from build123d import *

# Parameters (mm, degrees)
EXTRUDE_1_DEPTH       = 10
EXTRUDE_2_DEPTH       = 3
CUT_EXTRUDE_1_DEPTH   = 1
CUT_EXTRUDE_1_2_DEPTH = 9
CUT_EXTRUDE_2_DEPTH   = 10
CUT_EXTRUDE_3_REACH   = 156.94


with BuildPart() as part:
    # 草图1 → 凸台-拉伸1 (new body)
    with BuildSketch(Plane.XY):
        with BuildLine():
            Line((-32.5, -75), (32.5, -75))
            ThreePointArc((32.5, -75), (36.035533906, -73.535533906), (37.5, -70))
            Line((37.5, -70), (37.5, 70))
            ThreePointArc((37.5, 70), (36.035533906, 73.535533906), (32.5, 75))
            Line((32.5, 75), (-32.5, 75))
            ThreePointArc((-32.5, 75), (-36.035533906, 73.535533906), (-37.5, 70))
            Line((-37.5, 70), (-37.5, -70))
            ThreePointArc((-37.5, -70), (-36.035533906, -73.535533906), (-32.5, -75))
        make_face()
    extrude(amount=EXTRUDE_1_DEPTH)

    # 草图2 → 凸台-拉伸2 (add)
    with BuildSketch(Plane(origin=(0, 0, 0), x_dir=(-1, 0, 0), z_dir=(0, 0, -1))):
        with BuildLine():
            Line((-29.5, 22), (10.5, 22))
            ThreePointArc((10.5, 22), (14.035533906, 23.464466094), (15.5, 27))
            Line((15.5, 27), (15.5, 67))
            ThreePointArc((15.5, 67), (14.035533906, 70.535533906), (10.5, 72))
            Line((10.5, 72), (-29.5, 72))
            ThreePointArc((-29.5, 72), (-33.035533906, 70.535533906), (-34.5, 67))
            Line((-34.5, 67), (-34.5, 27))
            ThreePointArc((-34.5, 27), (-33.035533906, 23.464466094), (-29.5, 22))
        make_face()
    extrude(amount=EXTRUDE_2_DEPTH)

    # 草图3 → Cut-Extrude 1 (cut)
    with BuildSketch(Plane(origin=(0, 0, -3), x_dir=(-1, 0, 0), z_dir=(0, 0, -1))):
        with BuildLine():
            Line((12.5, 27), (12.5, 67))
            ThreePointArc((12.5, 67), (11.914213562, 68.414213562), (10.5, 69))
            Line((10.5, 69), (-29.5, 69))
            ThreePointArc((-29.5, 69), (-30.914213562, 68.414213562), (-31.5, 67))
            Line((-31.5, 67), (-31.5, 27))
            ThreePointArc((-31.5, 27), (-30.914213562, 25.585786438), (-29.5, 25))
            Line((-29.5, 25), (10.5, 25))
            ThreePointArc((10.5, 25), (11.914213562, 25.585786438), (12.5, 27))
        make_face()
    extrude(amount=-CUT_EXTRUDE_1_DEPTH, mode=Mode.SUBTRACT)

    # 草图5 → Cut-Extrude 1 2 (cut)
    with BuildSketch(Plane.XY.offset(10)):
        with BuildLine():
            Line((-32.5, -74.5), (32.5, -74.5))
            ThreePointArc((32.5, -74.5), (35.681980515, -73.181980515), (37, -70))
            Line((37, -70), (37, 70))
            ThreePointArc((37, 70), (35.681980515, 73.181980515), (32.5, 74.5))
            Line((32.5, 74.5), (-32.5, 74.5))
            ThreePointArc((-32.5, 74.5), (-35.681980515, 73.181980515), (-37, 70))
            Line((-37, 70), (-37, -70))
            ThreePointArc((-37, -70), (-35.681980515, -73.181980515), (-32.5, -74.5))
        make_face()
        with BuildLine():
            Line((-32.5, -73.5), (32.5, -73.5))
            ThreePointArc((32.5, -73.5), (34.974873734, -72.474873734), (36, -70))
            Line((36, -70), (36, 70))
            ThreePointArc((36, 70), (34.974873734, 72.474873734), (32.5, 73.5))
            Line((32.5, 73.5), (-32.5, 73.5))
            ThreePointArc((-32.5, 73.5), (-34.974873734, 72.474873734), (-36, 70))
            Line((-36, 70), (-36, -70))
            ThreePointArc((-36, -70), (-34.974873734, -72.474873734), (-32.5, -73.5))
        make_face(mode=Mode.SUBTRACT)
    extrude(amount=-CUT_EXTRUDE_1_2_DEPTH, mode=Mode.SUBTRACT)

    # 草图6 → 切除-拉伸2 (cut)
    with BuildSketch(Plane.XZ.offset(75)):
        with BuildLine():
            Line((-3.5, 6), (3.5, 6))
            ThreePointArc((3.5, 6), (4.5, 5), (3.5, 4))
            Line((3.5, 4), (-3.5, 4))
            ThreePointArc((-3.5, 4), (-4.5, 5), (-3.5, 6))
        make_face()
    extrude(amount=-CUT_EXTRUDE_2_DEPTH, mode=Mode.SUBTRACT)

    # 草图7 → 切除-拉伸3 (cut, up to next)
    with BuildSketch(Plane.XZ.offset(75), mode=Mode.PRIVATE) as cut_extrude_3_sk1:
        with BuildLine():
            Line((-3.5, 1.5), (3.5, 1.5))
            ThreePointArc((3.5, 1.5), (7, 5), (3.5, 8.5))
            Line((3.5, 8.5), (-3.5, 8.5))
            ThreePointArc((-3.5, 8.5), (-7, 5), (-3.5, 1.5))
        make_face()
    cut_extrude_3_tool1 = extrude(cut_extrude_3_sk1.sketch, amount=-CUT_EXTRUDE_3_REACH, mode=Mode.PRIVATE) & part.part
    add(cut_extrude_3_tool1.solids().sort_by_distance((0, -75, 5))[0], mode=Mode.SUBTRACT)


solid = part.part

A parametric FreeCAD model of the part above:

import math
import FreeCAD as App
import Part
import Sketcher
Q = App.Units.Quantity

doc = App.newDocument("Part")
body = doc.addObject("PartDesign::Body", "Body")

# Sketch on XY plane
sketch1 = doc.addObject("Sketcher::SketchObject", "Sketch")
body.addObject(sketch1)
sketch1.AttachmentSupport = (doc.XY_Plane, [""])
sketch1.MapMode = "FlatFace"
sketch1.addGeometry(Part.LineSegment(App.Vector(-32.5, -75, 0), App.Vector(32.5, -75, 0)), False)
sketch1.addGeometry(Part.ArcOfCircle(Part.Circle(App.Vector(32.5, -70, 0), App.Vector(0, 0, 1), 5), math.radians(-90), math.radians(0)), False)
sketch1.addGeometry(Part.LineSegment(App.Vector(37.5, -70, 0), App.Vector(37.5, 70, 0)), False)
sketch1.addGeometry(Part.ArcOfCircle(Part.Circle(App.Vector(32.5, 70, 0), App.Vector(0, 0, 1), 5), math.radians(0), math.radians(90)), False)
sketch1.addGeometry(Part.LineSegment(App.Vector(32.5, 75, 0), App.Vector(-32.5, 75, 0)), False)
sketch1.addGeometry(Part.ArcOfCircle(Part.Circle(App.Vector(-32.5, 70, 0), App.Vector(0, 0, 1), 5), math.radians(90), math.radians(180)), False)
sketch1.addGeometry(Part.LineSegment(App.Vector(-37.5, 70, 0), App.Vector(-37.5, -70, 0)), False)
sketch1.addGeometry(Part.ArcOfCircle(Part.Circle(App.Vector(-32.5, -70, 0), App.Vector(0, 0, 1), 5), math.radians(180), math.radians(270)), False)
sketch1.addConstraint(Sketcher.Constraint("Tangent", 0, 2, 1, 1))
sketch1.addConstraint(Sketcher.Constraint("Tangent", 1, 2, 2, 1))
sketch1.addConstraint(Sketcher.Constraint("Tangent", 2, 2, 3, 1))
sketch1.addConstraint(Sketcher.Constraint("Tangent", 3, 2, 4, 1))
sketch1.addConstraint(Sketcher.Constraint("Tangent", 4, 2, 5, 1))
sketch1.addConstraint(Sketcher.Constraint("Tangent", 5, 2, 6, 1))
sketch1.addConstraint(Sketcher.Constraint("Tangent", 6, 2, 7, 1))
sketch1.addConstraint(Sketcher.Constraint("Tangent", 7, 2, 0, 1))
sketch1.addConstraint(Sketcher.Constraint("Horizontal", 0))
sketch1.addConstraint(Sketcher.Constraint("Vertical", 2))
sketch1.addConstraint(Sketcher.Constraint("Horizontal", 4))
sketch1.addConstraint(Sketcher.Constraint("Vertical", 6))
sketch1.addConstraint(Sketcher.Constraint("Equal", 1, 3))
sketch1.addConstraint(Sketcher.Constraint("Equal", 3, 5))
sketch1.addConstraint(Sketcher.Constraint("Equal", 5, 7))
sketch1.addConstraint(Sketcher.Constraint("Symmetric", 1, 3, 5, 3, -1, 1))
sketch1.addConstraint(Sketcher.Constraint("Radius", 1, Q("5 mm")))
sketch1.addConstraint(Sketcher.Constraint("DistanceX", 0, 1, 0, 2, Q("65 mm")))
sketch1.addConstraint(Sketcher.Constraint("DistanceY", 2, 1, 2, 2, Q("140 mm")))
pad1 = doc.addObject("PartDesign::Pad", "Pad")
body.addObject(pad1)
pad1.Profile = sketch1
pad1.Length = 10

# Sketch on XY plane
sketch2 = doc.addObject("Sketcher::SketchObject", "Sketch001")
body.addObject(sketch2)
sketch2.AttachmentSupport = (doc.XY_Plane, [""])
sketch2.MapMode = "FlatFace"
sketch2.addGeometry(Part.LineSegment(App.Vector(29.5, 22, 0), App.Vector(-10.5, 22, 0)), False)
sketch2.addGeometry(Part.ArcOfCircle(Part.Circle(App.Vector(-10.5, 27, 0), App.Vector(0, 0, 1), 5), math.radians(180), math.radians(270)), False)
sketch2.addGeometry(Part.LineSegment(App.Vector(-15.5, 27, 0), App.Vector(-15.5, 67, 0)), False)
sketch2.addGeometry(Part.ArcOfCircle(Part.Circle(App.Vector(-10.5, 67, 0), App.Vector(0, 0, 1), 5), math.radians(90), math.radians(180)), False)
sketch2.addGeometry(Part.LineSegment(App.Vector(-10.5, 72, 0), App.Vector(29.5, 72, 0)), False)
sketch2.addGeometry(Part.ArcOfCircle(Part.Circle(App.Vector(29.5, 67, 0), App.Vector(0, 0, 1), 5), math.radians(0), math.radians(90)), False)
sketch2.addGeometry(Part.LineSegment(App.Vector(34.5, 67, 0), App.Vector(34.5, 27, 0)), False)
sketch2.addGeometry(Part.ArcOfCircle(Part.Circle(App.Vector(29.5, 27, 0), App.Vector(0, 0, 1), 5), math.radians(-90), math.radians(0)), False)
sketch2.addConstraint(Sketcher.Constraint("Tangent", 0, 2, 1, 2))
sketch2.addConstraint(Sketcher.Constraint("Tangent", 1, 1, 2, 1))
sketch2.addConstraint(Sketcher.Constraint("Tangent", 2, 2, 3, 2))
sketch2.addConstraint(Sketcher.Constraint("Tangent", 3, 1, 4, 1))
sketch2.addConstraint(Sketcher.Constraint("Tangent", 4, 2, 5, 2))
sketch2.addConstraint(Sketcher.Constraint("Tangent", 5, 1, 6, 1))
sketch2.addConstraint(Sketcher.Constraint("Tangent", 6, 2, 7, 2))
sketch2.addConstraint(Sketcher.Constraint("Tangent", 7, 1, 0, 1))
sketch2.addConstraint(Sketcher.Constraint("Horizontal", 0))
sketch2.addConstraint(Sketcher.Constraint("Vertical", 2))
sketch2.addConstraint(Sketcher.Constraint("Horizontal", 4))
sketch2.addConstraint(Sketcher.Constraint("Vertical", 6))
sketch2.addConstraint(Sketcher.Constraint("Equal", 1, 3))
sketch2.addConstraint(Sketcher.Constraint("Equal", 3, 5))
sketch2.addConstraint(Sketcher.Constraint("Equal", 5, 7))
sketch2.addConstraint(Sketcher.Constraint("Equal", 4, 2))
sketch2.addConstraint(Sketcher.Constraint("Radius", 1, Q("5 mm")))
sketch2.addConstraint(Sketcher.Constraint("DistanceX", 0, 2, 0, 1, Q("40 mm")))
sketch2.addConstraint(Sketcher.Constraint("DistanceY", -1, 1, 1, 3, Q("27 mm")))
sketch2.addConstraint(Sketcher.Constraint("DistanceX", 1, 3, -1, 1, Q("10.5 mm")))
pad2 = doc.addObject("PartDesign::Pad", "Pad001")
body.addObject(pad2)
pad2.Profile = sketch2
pad2.Length = 3
pad2.Reversed = True

# Sketch on XY plane
sketch3 = doc.addObject("Sketcher::SketchObject", "Sketch002")
body.addObject(sketch3)
sketch3.AttachmentSupport = (doc.XY_Plane, [""])
sketch3.MapMode = "FlatFace"
sketch3.AttachmentOffset = App.Placement(App.Vector(0, 0, -3), App.Rotation())
sketch3.addGeometry(Part.LineSegment(App.Vector(-12.5, 27, 0), App.Vector(-12.5, 67, 0)), False)
sketch3.addGeometry(Part.ArcOfCircle(Part.Circle(App.Vector(-10.5, 67, 0), App.Vector(0, 0, 1), 2), math.radians(90), math.radians(180)), False)
sketch3.addGeometry(Part.LineSegment(App.Vector(-10.5, 69, 0), App.Vector(29.5, 69, 0)), False)
sketch3.addGeometry(Part.ArcOfCircle(Part.Circle(App.Vector(29.5, 67, 0), App.Vector(0, 0, 1), 2), math.radians(0), math.radians(90)), False)
sketch3.addGeometry(Part.LineSegment(App.Vector(31.5, 67, 0), App.Vector(31.5, 27, 0)), False)
sketch3.addGeometry(Part.ArcOfCircle(Part.Circle(App.Vector(29.5, 27, 0), App.Vector(0, 0, 1), 2), math.radians(-90), math.radians(0)), False)
sketch3.addGeometry(Part.LineSegment(App.Vector(29.5, 25, 0), App.Vector(-10.5, 25, 0)), False)
sketch3.addGeometry(Part.ArcOfCircle(Part.Circle(App.Vector(-10.5, 27, 0), App.Vector(0, 0, 1), 2), math.radians(-180), math.radians(-90)), False)
sketch3.addConstraint(Sketcher.Constraint("Tangent", 0, 2, 1, 2))
sketch3.addConstraint(Sketcher.Constraint("Tangent", 1, 1, 2, 1))
sketch3.addConstraint(Sketcher.Constraint("Tangent", 2, 2, 3, 2))
sketch3.addConstraint(Sketcher.Constraint("Tangent", 3, 1, 4, 1))
sketch3.addConstraint(Sketcher.Constraint("Tangent", 4, 2, 5, 2))
sketch3.addConstraint(Sketcher.Constraint("Tangent", 5, 1, 6, 1))
sketch3.addConstraint(Sketcher.Constraint("Tangent", 6, 2, 7, 2))
sketch3.addConstraint(Sketcher.Constraint("Tangent", 7, 1, 0, 1))
sketch3.addConstraint(Sketcher.Constraint("Vertical", 0))
sketch3.addConstraint(Sketcher.Constraint("Horizontal", 2))
sketch3.addConstraint(Sketcher.Constraint("Vertical", 4))
sketch3.addConstraint(Sketcher.Constraint("Horizontal", 6))
sketch3.addConstraint(Sketcher.Constraint("Equal", 1, 3))
sketch3.addConstraint(Sketcher.Constraint("Equal", 3, 5))
sketch3.addConstraint(Sketcher.Constraint("Equal", 5, 7))
sketch3.addConstraint(Sketcher.Constraint("Equal", 6, 0))
sketch3.addConstraint(Sketcher.Constraint("Radius", 1, Q("2 mm")))
sketch3.addConstraint(Sketcher.Constraint("DistanceX", 2, 1, 2, 2, Q("40 mm")))
sketch3.addConstraint(Sketcher.Constraint("DistanceY", -1, 1, 1, 3, Q("67 mm")))
sketch3.addConstraint(Sketcher.Constraint("DistanceX", 1, 3, -1, 1, Q("10.5 mm")))
pocket1 = doc.addObject("PartDesign::Pocket", "Pocket")
body.addObject(pocket1)
pocket1.Profile = sketch3
pocket1.Length = 1
pocket1.Reversed = True

# Sketch on XY plane
sketch4 = doc.addObject("Sketcher::SketchObject", "Sketch003")
body.addObject(sketch4)
sketch4.AttachmentSupport = (doc.XY_Plane, [""])
sketch4.MapMode = "FlatFace"
sketch4.AttachmentOffset = App.Placement(App.Vector(0, 0, 10), App.Rotation())
sketch4.addGeometry(Part.LineSegment(App.Vector(-32.5, -74.5, 0), App.Vector(32.5, -74.5, 0)), False)
sketch4.addGeometry(Part.ArcOfCircle(Part.Circle(App.Vector(32.5, -70, 0), App.Vector(0, 0, 1), 4.5), math.radians(-90), math.radians(0)), False)
sketch4.addGeometry(Part.LineSegment(App.Vector(37, -70, 0), App.Vector(37, 70, 0)), False)
sketch4.addGeometry(Part.ArcOfCircle(Part.Circle(App.Vector(32.5, 70, 0), App.Vector(0, 0, 1), 4.5), math.radians(0), math.radians(90)), False)
sketch4.addGeometry(Part.LineSegment(App.Vector(32.5, 74.5, 0), App.Vector(-32.5, 74.5, 0)), False)
sketch4.addGeometry(Part.ArcOfCircle(Part.Circle(App.Vector(-32.5, 70, 0), App.Vector(0, 0, 1), 4.5), math.radians(90), math.radians(180)), False)
sketch4.addGeometry(Part.LineSegment(App.Vector(-37, 70, 0), App.Vector(-37, -70, 0)), False)
sketch4.addGeometry(Part.ArcOfCircle(Part.Circle(App.Vector(-32.5, -70, 0), App.Vector(0, 0, 1), 4.5), math.radians(-180), math.radians(-90)), False)
sketch4.addGeometry(Part.LineSegment(App.Vector(32.5, -73.5, 0), App.Vector(-32.5, -73.5, 0)), False)
sketch4.addGeometry(Part.ArcOfCircle(Part.Circle(App.Vector(-32.5, -70, 0), App.Vector(0, 0, 1), 3.5), math.radians(-180), math.radians(-90)), False)
sketch4.addGeometry(Part.LineSegment(App.Vector(-36, -70, 0), App.Vector(-36, 70, 0)), False)
sketch4.addGeometry(Part.ArcOfCircle(Part.Circle(App.Vector(-32.5, 70, 0), App.Vector(0, 0, 1), 3.5), math.radians(90), math.radians(180)), False)
sketch4.addGeometry(Part.LineSegment(App.Vector(-32.5, 73.5, 0), App.Vector(32.5, 73.5, 0)), False)
sketch4.addGeometry(Part.ArcOfCircle(Part.Circle(App.Vector(32.5, 70, 0), App.Vector(0, 0, 1), 3.5), math.radians(0), math.radians(90)), False)
sketch4.addGeometry(Part.LineSegment(App.Vector(36, 70, 0), App.Vector(36, -70, 0)), False)
sketch4.addGeometry(Part.ArcOfCircle(Part.Circle(App.Vector(32.5, -70, 0), App.Vector(0, 0, 1), 3.5), math.radians(-90), math.radians(0)), False)
sketch4.addConstraint(Sketcher.Constraint("Tangent", 0, 2, 1, 1))
sketch4.addConstraint(Sketcher.Constraint("Tangent", 1, 2, 2, 1))
sketch4.addConstraint(Sketcher.Constraint("Tangent", 2, 2, 3, 1))
sketch4.addConstraint(Sketcher.Constraint("Tangent", 3, 2, 4, 1))
sketch4.addConstraint(Sketcher.Constraint("Tangent", 4, 2, 5, 1))
sketch4.addConstraint(Sketcher.Constraint("Tangent", 5, 2, 6, 1))
sketch4.addConstraint(Sketcher.Constraint("Tangent", 6, 2, 7, 1))
sketch4.addConstraint(Sketcher.Constraint("Tangent", 7, 2, 0, 1))
sketch4.addConstraint(Sketcher.Constraint("Tangent", 8, 2, 9, 2))
sketch4.addConstraint(Sketcher.Constraint("Tangent", 9, 1, 10, 1))
sketch4.addConstraint(Sketcher.Constraint("Tangent", 10, 2, 11, 2))
sketch4.addConstraint(Sketcher.Constraint("Tangent", 11, 1, 12, 1))
sketch4.addConstraint(Sketcher.Constraint("Tangent", 12, 2, 13, 2))
sketch4.addConstraint(Sketcher.Constraint("Tangent", 13, 1, 14, 1))
sketch4.addConstraint(Sketcher.Constraint("Tangent", 14, 2, 15, 2))
sketch4.addConstraint(Sketcher.Constraint("Tangent", 15, 1, 8, 1))
sketch4.addConstraint(Sketcher.Constraint("Horizontal", 0))
sketch4.addConstraint(Sketcher.Constraint("Vertical", 2))
sketch4.addConstraint(Sketcher.Constraint("Horizontal", 4))
sketch4.addConstraint(Sketcher.Constraint("Vertical", 6))
sketch4.addConstraint(Sketcher.Constraint("Horizontal", 8))
sketch4.addConstraint(Sketcher.Constraint("Vertical", 10))
sketch4.addConstraint(Sketcher.Constraint("Horizontal", 12))
sketch4.addConstraint(Sketcher.Constraint("Vertical", 14))
sketch4.addConstraint(Sketcher.Constraint("Coincident", 9, 3, 7, 3))
sketch4.addConstraint(Sketcher.Constraint("Coincident", 11, 3, 5, 3))
sketch4.addConstraint(Sketcher.Constraint("Coincident", 13, 3, 3, 3))
sketch4.addConstraint(Sketcher.Constraint("Equal", 1, 3))
sketch4.addConstraint(Sketcher.Constraint("Equal", 3, 5))
sketch4.addConstraint(Sketcher.Constraint("Equal", 5, 7))
sketch4.addConstraint(Sketcher.Constraint("Equal", 13, 15))
sketch4.addConstraint(Sketcher.Constraint("Symmetric", 1, 3, 5, 3, -1, 1))
sketch4.addConstraint(Sketcher.Constraint("Radius", 1, Q("4.5 mm")))
sketch4.addConstraint(Sketcher.Constraint("Radius", 9, Q("3.5 mm")))
sketch4.addConstraint(Sketcher.Constraint("DistanceX", 0, 1, 0, 2, Q("65 mm")))
sketch4.addConstraint(Sketcher.Constraint("DistanceY", 2, 1, 2, 2, Q("140 mm")))
pocket2 = doc.addObject("PartDesign::Pocket", "Pocket001")
body.addObject(pocket2)
pocket2.Profile = sketch4
pocket2.Length = 9

# Sketch on XZ plane
sketch5 = doc.addObject("Sketcher::SketchObject", "Sketch004")
body.addObject(sketch5)
sketch5.AttachmentSupport = (doc.XZ_Plane, [""])
sketch5.MapMode = "FlatFace"
sketch5.AttachmentOffset = App.Placement(App.Vector(0, 0, 75), App.Rotation())
sketch5.addGeometry(Part.LineSegment(App.Vector(3.5, 6, 0), App.Vector(-3.5, 6, 0)), False)
sketch5.addGeometry(Part.ArcOfCircle(Part.Circle(App.Vector(-3.5, 5, 0), App.Vector(0, 0, 1), 1), math.radians(90), math.radians(270)), False)
sketch5.addGeometry(Part.LineSegment(App.Vector(-3.5, 4, 0), App.Vector(3.5, 4, 0)), False)
sketch5.addGeometry(Part.ArcOfCircle(Part.Circle(App.Vector(3.5, 5, 0), App.Vector(0, 0, 1), 1), math.radians(-90), math.radians(90)), False)
sketch5.addConstraint(Sketcher.Constraint("Tangent", 0, 2, 1, 1))
sketch5.addConstraint(Sketcher.Constraint("Tangent", 1, 2, 2, 1))
sketch5.addConstraint(Sketcher.Constraint("Tangent", 2, 2, 3, 1))
sketch5.addConstraint(Sketcher.Constraint("Tangent", 3, 2, 0, 1))
sketch5.addConstraint(Sketcher.Constraint("Horizontal", 0))
sketch5.addConstraint(Sketcher.Constraint("Horizontal", 2))
sketch5.addConstraint(Sketcher.Constraint("Radius", 1, Q("1 mm")))
sketch5.addConstraint(Sketcher.Constraint("DistanceX", 0, 2, 0, 1, Q("7 mm")))
sketch5.addConstraint(Sketcher.Constraint("DistanceY", -1, 1, 1, 3, Q("5 mm")))
sketch5.addConstraint(Sketcher.Constraint("DistanceX", 1, 3, -1, 1, Q("3.5 mm")))
pocket3 = doc.addObject("PartDesign::Pocket", "Pocket002")
body.addObject(pocket3)
pocket3.Profile = sketch5
pocket3.Length = 10

# Sketch on XZ plane
sketch6 = doc.addObject("Sketcher::SketchObject", "Sketch005")
body.addObject(sketch6)
sketch6.AttachmentSupport = (doc.XZ_Plane, [""])
sketch6.MapMode = "FlatFace"
sketch6.AttachmentOffset = App.Placement(App.Vector(0, 0, 75), App.Rotation())
sketch6.addGeometry(Part.LineSegment(App.Vector(-3.5, 1.5, 0), App.Vector(3.5, 1.5, 0)), False)
sketch6.addGeometry(Part.ArcOfCircle(Part.Circle(App.Vector(3.5, 5, 0), App.Vector(0, 0, 1), 3.5), math.radians(-90), math.radians(90)), False)
sketch6.addGeometry(Part.LineSegment(App.Vector(3.5, 8.5, 0), App.Vector(-3.5, 8.5, 0)), False)
sketch6.addGeometry(Part.ArcOfCircle(Part.Circle(App.Vector(-3.5, 5, 0), App.Vector(0, 0, 1), 3.5), math.radians(90), math.radians(270)), False)
sketch6.addConstraint(Sketcher.Constraint("Tangent", 0, 2, 1, 1))
sketch6.addConstraint(Sketcher.Constraint("Tangent", 1, 2, 2, 1))
sketch6.addConstraint(Sketcher.Constraint("Tangent", 2, 2, 3, 1))
sketch6.addConstraint(Sketcher.Constraint("Tangent", 3, 2, 0, 1))
sketch6.addConstraint(Sketcher.Constraint("Horizontal", 0))
sketch6.addConstraint(Sketcher.Constraint("Horizontal", 2))
sketch6.addConstraint(Sketcher.Constraint("Radius", 1, Q("3.5 mm")))
sketch6.addConstraint(Sketcher.Constraint("DistanceX", 0, 1, 0, 2, Q("7 mm")))
sketch6.addConstraint(Sketcher.Constraint("DistanceY", -1, 1, 1, 3, Q("5 mm")))
sketch6.addConstraint(Sketcher.Constraint("DistanceX", -1, 1, 1, 3, Q("3.5 mm")))
pocket4 = doc.addObject("PartDesign::Pocket", "Pocket003")
body.addObject(pocket4)
pocket4.Profile = sketch6
pocket4.Length = 0.5

doc.recompute()
